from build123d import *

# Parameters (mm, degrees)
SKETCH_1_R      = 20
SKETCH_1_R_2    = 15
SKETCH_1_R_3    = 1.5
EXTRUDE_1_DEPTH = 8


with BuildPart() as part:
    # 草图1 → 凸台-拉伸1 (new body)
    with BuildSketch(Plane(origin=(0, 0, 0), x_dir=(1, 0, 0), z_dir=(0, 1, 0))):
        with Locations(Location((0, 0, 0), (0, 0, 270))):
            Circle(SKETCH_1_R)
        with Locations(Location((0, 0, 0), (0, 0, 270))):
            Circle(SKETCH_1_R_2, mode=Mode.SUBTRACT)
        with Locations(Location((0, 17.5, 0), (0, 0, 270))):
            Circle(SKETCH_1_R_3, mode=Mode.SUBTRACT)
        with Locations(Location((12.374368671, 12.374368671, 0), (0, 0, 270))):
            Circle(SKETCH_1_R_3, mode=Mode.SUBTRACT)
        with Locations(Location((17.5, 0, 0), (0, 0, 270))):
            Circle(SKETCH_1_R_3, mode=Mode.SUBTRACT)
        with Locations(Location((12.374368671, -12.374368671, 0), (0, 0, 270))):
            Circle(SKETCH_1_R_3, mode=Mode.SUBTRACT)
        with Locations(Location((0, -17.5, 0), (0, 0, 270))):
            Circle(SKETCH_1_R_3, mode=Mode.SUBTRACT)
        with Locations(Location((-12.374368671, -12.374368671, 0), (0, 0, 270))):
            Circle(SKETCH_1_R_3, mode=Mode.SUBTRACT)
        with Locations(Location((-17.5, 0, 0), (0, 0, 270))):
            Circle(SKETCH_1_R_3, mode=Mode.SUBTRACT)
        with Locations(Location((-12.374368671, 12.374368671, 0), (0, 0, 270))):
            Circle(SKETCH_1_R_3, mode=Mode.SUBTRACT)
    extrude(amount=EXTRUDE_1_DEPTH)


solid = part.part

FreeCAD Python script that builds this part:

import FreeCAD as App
import Part
import Sketcher
Q = App.Units.Quantity

doc = App.newDocument("Part")
params = doc.addObject("Spreadsheet::Sheet", "Params")
for row, (alias, value) in enumerate([
    ("sketch1_diameter", "40 mm"),
    ("sketch1_diameter2", "3 mm"),
    ("sketch1_diameter3", "30 mm"),
    ("pad1_length", "8 mm"),
], start=1):
    params.set(f"A{row}", alias)
    params.set(f"B{row}", "=" + value)
    params.setAlias(f"B{row}", alias)

body = doc.addObject("PartDesign::Body", "Body")

# Sketch on XZ plane
sketch1 = body.newObject("Sketcher::SketchObject", "Sketch")
sketch1.AttachmentSupport = (doc.getObject("XZ_Plane"), [""])
sketch1.MapMode = "FlatFace"
sketch1.addGeometry(Part.Circle(App.Vector(0, 0, 0), App.Vector(0, 0, 1), 20), False)
sketch1.addGeometry(Part.Circle(App.Vector(-12.374369, -12.374369, 0), App.Vector(0, 0, 1), 1.5), False)
sketch1.addGeometry(Part.Circle(App.Vector(0, -17.5, 0), App.Vector(0, 0, 1), 1.5), False)
sketch1.addGeometry(Part.Circle(App.Vector(-17.5, 0, 0), App.Vector(0, 0, 1), 1.5), False)
sketch1.addGeometry(Part.Circle(App.Vector(-12.374369, 12.374369, 0), App.Vector(0, 0, 1), 1.5), False)
sketch1.addGeometry(Part.Circle(App.Vector(12.374369, -12.374369, 0), App.Vector(0, 0, 1), 1.5), False)
sketch1.addGeometry(Part.Circle(App.Vector(17.5, 0, 0), App.Vector(0, 0, 1), 1.5), False)
sketch1.addGeometry(Part.Circle(App.Vector(0, 0, 0), App.Vector(0, 0, 1), 15), False)
sketch1.addGeometry(Part.Circle(App.Vector(0, 17.5, 0), App.Vector(0, 0, 1), 1.5), False)
sketch1.addGeometry(Part.Circle(App.Vector(12.374369, 12.374369, 0), App.Vector(0, 0, 1), 1.5), False)
sketch1.addConstraint(Sketcher.Constraint("Coincident", 0, 3, -1, 1))
sketch1.addConstraint(Sketcher.Constraint("Coincident", 7, 3, -1, 1))
sketch1.addConstraint(Sketcher.Constraint("Equal", 1, 2))
sketch1.addConstraint(Sketcher.Constraint("Equal", 2, 3))
sketch1.addConstraint(Sketcher.Constraint("Equal", 3, 4))
sketch1.addConstraint(Sketcher.Constraint("Equal", 4, 5))
sketch1.addConstraint(Sketcher.Constraint("Equal", 5, 6))
sketch1.addConstraint(Sketcher.Constraint("Equal", 6, 8))
sketch1.addConstraint(Sketcher.Constraint("Equal", 8, 9))
sketch1.addConstraint(Sketcher.Constraint("Symmetric", 4, 3, 5, 3, -1, 1))
sketch1.addConstraint(Sketcher.Constraint("Symmetric", 3, 3, 6, 3, -1, 1))
sketch1.addConstraint(Sketcher.Constraint("Symmetric", 2, 3, 8, 3, -1, 1))
sketch1.addConstraint(Sketcher.Constraint("Symmetric", 1, 3, 9, 3, -1, 1))
sketch1.addConstraint(Sketcher.Constraint("Symmetric", 1, 3, 5, 3, -2))
sketch1.addConstraint(Sketcher.Constraint("PointOnObject", 2, 3, -2))
sketch1.addConstraint(Sketcher.Constraint("PointOnObject", 3, 3, -1))
sketch1.addConstraint(Sketcher.Constraint("Diameter", 0, Q("40 mm")))
sketch1.addConstraint(Sketcher.Constraint("Diameter", 1, Q("3 mm")))
sketch1.addConstraint(Sketcher.Constraint("Diameter", 7, Q("30 mm")))
sketch1.addConstraint(Sketcher.Constraint("DistanceY", 2, 3, -1, 1, Q("17.5 mm")))
sketch1.addConstraint(Sketcher.Constraint("DistanceX", 3, 3, -1, 1, Q("17.5 mm")))
sketch1.addConstraint(Sketcher.Constraint("DistanceX", 1, 3, -1, 1, Q("12.374369 mm")))
sketch1.addConstraint(Sketcher.Constraint("DistanceY", 1, 3, -1, 1, Q("12.374369 mm")))
sketch1.setExpression("Constraints[16]", "Params.sketch1_diameter")
sketch1.setExpression("Constraints[17]", "Params.sketch1_diameter2")
sketch1.setExpression("Constraints[18]", "Params.sketch1_diameter3")
pad1 = body.newObject("PartDesign::Pad", "Pad")
pad1.Profile = sketch1
pad1.setExpression("Length", "Params.pad1_length")
pad1.Reversed = True

doc.recompute()
